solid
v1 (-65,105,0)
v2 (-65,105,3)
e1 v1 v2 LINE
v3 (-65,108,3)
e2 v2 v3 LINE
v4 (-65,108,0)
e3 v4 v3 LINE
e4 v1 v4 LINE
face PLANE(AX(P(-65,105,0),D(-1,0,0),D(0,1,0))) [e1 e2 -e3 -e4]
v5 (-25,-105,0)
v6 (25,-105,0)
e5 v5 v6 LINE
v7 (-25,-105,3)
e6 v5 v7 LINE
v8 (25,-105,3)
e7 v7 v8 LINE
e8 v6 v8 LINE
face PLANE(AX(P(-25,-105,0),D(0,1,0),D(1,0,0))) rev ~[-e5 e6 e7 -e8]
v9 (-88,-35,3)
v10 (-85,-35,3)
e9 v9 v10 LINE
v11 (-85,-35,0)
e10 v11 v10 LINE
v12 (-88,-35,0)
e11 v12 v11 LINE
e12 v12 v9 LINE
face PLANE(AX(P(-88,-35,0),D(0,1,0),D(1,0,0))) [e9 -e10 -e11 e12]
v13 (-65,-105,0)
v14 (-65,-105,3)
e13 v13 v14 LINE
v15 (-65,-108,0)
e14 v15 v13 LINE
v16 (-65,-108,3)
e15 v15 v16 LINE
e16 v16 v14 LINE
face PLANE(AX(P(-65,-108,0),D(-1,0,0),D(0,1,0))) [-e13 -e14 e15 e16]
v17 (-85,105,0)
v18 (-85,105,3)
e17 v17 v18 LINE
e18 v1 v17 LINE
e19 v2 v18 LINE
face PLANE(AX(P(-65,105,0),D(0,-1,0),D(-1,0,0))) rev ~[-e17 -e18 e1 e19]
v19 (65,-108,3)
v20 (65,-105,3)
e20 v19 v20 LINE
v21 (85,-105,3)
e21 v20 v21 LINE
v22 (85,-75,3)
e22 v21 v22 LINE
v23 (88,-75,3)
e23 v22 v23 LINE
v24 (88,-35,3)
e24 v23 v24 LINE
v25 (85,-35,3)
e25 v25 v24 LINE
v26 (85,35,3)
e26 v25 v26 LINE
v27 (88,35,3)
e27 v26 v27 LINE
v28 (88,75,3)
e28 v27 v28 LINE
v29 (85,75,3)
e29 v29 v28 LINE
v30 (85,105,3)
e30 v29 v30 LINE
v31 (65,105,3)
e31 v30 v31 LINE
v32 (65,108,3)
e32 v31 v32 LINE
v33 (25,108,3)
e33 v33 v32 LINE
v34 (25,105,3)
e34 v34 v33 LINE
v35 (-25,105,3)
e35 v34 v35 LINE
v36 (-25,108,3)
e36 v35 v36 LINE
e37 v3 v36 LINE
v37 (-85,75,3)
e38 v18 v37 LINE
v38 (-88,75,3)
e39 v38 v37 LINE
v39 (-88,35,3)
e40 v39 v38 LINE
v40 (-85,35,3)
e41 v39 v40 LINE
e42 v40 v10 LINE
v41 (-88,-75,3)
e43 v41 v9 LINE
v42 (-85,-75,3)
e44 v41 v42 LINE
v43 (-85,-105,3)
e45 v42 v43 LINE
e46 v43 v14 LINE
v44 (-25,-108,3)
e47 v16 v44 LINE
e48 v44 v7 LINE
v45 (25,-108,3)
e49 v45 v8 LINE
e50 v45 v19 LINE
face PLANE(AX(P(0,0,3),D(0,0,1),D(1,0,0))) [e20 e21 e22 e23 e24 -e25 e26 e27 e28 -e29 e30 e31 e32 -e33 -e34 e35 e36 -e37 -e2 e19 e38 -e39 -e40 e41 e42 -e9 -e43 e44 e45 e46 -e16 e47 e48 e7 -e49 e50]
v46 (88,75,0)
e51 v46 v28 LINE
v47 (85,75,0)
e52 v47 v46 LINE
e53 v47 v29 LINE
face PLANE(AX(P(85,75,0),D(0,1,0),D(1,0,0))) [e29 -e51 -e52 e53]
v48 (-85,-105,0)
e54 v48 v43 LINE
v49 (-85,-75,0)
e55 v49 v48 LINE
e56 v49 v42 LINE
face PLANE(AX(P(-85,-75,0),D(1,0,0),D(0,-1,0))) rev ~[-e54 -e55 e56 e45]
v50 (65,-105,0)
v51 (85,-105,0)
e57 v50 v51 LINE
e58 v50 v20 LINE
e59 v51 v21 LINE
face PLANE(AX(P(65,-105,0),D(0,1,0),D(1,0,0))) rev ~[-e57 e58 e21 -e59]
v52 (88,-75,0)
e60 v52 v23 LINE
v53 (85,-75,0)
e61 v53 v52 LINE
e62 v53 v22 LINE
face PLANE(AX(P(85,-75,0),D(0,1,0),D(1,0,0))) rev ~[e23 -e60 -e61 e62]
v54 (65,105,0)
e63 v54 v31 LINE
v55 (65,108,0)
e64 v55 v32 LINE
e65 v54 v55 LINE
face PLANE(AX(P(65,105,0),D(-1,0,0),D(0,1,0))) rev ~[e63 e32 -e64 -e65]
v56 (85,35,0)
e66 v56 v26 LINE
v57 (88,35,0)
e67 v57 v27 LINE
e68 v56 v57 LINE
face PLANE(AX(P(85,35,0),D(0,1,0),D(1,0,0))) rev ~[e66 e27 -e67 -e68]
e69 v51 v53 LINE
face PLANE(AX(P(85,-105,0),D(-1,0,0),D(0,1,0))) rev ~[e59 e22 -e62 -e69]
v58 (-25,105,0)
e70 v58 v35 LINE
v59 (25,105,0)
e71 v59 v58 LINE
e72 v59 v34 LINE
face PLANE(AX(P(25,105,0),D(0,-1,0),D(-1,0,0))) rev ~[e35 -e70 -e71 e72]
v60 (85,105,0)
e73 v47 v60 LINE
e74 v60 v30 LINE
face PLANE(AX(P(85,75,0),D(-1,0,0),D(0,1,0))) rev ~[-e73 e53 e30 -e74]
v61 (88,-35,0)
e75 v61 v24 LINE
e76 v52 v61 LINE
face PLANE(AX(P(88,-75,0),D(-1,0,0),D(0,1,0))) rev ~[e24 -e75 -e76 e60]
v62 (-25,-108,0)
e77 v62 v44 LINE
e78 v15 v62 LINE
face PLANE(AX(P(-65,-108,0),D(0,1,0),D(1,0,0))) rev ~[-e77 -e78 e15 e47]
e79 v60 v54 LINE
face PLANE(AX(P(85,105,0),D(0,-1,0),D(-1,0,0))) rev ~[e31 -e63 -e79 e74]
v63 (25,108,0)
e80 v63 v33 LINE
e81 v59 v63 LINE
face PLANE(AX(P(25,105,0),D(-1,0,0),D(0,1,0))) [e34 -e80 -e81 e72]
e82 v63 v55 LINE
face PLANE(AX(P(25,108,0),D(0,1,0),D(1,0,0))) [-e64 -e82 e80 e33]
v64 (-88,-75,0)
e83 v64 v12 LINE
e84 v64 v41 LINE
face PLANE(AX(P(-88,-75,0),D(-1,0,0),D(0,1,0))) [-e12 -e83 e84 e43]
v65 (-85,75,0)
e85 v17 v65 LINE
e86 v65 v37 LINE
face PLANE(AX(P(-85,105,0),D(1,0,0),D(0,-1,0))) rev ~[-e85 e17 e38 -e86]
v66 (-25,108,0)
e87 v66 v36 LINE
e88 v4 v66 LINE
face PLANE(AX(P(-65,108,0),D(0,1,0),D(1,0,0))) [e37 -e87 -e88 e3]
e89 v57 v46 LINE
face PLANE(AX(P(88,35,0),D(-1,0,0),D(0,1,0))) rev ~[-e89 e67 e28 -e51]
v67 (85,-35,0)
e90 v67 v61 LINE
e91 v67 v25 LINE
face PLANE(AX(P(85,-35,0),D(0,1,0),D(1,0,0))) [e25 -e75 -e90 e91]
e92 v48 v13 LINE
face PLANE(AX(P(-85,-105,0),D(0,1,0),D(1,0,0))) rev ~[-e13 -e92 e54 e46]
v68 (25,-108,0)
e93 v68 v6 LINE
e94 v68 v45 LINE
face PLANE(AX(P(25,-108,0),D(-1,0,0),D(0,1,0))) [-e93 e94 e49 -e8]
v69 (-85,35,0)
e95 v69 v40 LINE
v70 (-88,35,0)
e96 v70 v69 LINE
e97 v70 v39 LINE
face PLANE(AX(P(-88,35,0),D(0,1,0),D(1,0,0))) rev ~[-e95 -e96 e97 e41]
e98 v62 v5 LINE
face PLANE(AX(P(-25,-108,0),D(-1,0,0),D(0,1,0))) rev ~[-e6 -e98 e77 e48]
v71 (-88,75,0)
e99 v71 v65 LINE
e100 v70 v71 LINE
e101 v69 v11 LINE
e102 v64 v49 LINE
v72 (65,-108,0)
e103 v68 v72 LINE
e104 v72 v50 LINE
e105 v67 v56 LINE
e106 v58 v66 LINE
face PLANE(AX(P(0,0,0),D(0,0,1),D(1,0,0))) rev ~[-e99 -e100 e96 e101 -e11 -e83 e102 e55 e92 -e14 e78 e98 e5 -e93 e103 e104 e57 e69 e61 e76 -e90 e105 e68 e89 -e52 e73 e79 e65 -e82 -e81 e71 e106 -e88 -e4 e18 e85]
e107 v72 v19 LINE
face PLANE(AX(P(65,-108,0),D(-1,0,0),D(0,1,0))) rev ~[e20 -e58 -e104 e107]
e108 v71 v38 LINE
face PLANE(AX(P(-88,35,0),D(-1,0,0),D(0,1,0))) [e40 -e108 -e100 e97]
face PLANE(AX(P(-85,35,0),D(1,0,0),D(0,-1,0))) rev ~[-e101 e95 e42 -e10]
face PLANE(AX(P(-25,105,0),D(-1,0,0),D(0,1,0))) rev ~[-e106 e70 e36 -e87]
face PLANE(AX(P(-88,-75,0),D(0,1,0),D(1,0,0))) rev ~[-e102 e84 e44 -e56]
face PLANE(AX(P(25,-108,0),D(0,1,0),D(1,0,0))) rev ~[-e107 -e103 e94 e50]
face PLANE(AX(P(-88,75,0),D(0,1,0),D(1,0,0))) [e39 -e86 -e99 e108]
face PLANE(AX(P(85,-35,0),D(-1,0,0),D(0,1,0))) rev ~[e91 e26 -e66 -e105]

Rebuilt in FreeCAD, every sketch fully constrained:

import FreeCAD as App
import Part
import Sketcher
from FreeCAD import Vector
Q = App.Units.Quantity


def add_polygon(sketch, points):
    """Adds a closed chain of lines whose ends are joined by coincident constraints."""
    first, n = sketch.GeometryCount, len(points)
    for a, b in zip(points, points[1:] + points[:1]):
        sketch.addGeometry(Part.LineSegment(App.Vector(*a, 0), App.Vector(*b, 0)), False)
    for i in range(n):
        sketch.addConstraint(Sketcher.Constraint("Coincident", first + i, 2, first + (i + 1) % n, 1))

doc = App.newDocument("Part")
body = doc.addObject("PartDesign::Body", "Body")

sketch1 = body.newObject("Sketcher::SketchObject", "Sketch")
sketch1.AttachmentSupport = (doc.getObject("XY_Plane"), [""])
sketch1.MapMode = "FlatFace"
add_polygon(sketch1, [(85, 105), (65, 105), (65, 108), (25, 108), (25, 105), (-25, 105), (-25, 108), (-65, 108), (-65, 105), (-85, 105), (-85, 75), (-88, 75), (-88, 35), (-85, 35), (-85, -35), (-88, -35), (-88, -75), (-85, -75), (-85, -105), (-65, -105), (-65, -108), (-25, -108), (-25, -105), (25, -105), (25, -108), (65, -108), (65, -105), (85, -105), (85, -75), (88, -75), (88, -35), (85, -35), (85, 35), (88, 35), (88, 75), (85, 75)])
sketch1.addConstraint([
    Sketcher.Constraint("Horizontal", 0),
    Sketcher.Constraint("Vertical", 1),
    Sketcher.Constraint("Horizontal", 2),
    Sketcher.Constraint("Vertical", 3),
    Sketcher.Constraint("Horizontal", 4),
    Sketcher.Constraint("Vertical", 5),
    Sketcher.Constraint("Horizontal", 6),
    Sketcher.Constraint("Vertical", 7),
    Sketcher.Constraint("Horizontal", 8),
    Sketcher.Constraint("Vertical", 9),
    Sketcher.Constraint("Horizontal", 10),
    Sketcher.Constraint("Vertical", 11),
    Sketcher.Constraint("Horizontal", 12),
    Sketcher.Constraint("Vertical", 13),
    Sketcher.Constraint("Horizontal", 14),
    Sketcher.Constraint("Vertical", 15),
    Sketcher.Constraint("Horizontal", 16),
    Sketcher.Constraint("Vertical", 17),
    Sketcher.Constraint("Horizontal", 18),
    Sketcher.Constraint("Vertical", 19),
    Sketcher.Constraint("Horizontal", 20),
    Sketcher.Constraint("Vertical", 21),
    Sketcher.Constraint("Horizontal", 22),
    Sketcher.Constraint("Vertical", 23),
    Sketcher.Constraint("Horizontal", 24),
    Sketcher.Constraint("Vertical", 25),
    Sketcher.Constraint("Horizontal", 26),
    Sketcher.Constraint("Vertical", 27),
    Sketcher.Constraint("Horizontal", 28),
    Sketcher.Constraint("Vertical", 29),
    Sketcher.Constraint("Horizontal", 30),
    Sketcher.Constraint("Vertical", 31),
    Sketcher.Constraint("Horizontal", 32),
    Sketcher.Constraint("Vertical", 33),
    Sketcher.Constraint("Horizontal", 34),
    Sketcher.Constraint("Vertical", 35),
    Sketcher.Constraint("Symmetric", 0, 2, 18, 2, -1, 1),
    Sketcher.Constraint("Symmetric", 2, 2, 20, 2, -1, 1),
    Sketcher.Constraint("Symmetric", 4, 2, 22, 2, -1, 1),
    Sketcher.Constraint("Symmetric", 6, 2, 24, 2, -1, 1),
    Sketcher.Constraint("Symmetric", 8, 2, 26, 2, -1, 1),
    Sketcher.Constraint("Symmetric", 10, 2, 28, 2, -1, 1),
    Sketcher.Constraint("Symmetric", 12, 2, 30, 2, -1, 1),
    Sketcher.Constraint("Symmetric", 14, 2, 32, 2, -1, 1),
    Sketcher.Constraint("Symmetric", 16, 2, 34, 2, -1, 1),
    Sketcher.Constraint("Symmetric", 2, 2, 5, 2, -2),
    Sketcher.Constraint("Symmetric", 0, 2, 7, 2, -2),
    Sketcher.Constraint("Symmetric", 16, 2, 27, 2, -2),
    Sketcher.Constraint("Symmetric", 14, 2, 29, 2, -2),
    Sketcher.Constraint("Horizontal", 0, 2, 3, 2),
    Sketcher.Constraint("Vertical", 9, 2, 12, 2),
    Sketcher.Constraint("Equal", 34, 1),
    Sketcher.Constraint("Equal", 24, 11),
    Sketcher.Constraint("DistanceX", 0, 2, 0, 1, Q("20 mm")),
    Sketcher.Constraint("DistanceX", 2, 2, 2, 1, Q("40 mm")),
    Sketcher.Constraint("DistanceX", 4, 2, 4, 1, Q("50 mm")),
    Sketcher.Constraint("DistanceX", 10, 2, 10, 1, Q("3 mm")),
    Sketcher.Constraint("DistanceY", 9, 2, 9, 1, Q("30 mm")),
    Sketcher.Constraint("DistanceY", 13, 2, 13, 1, Q("70 mm")),
])
pad1 = body.newObject("PartDesign::Pad", "Pad")
pad1.Profile = sketch1
pad1.Length = 3

doc.recompute()
